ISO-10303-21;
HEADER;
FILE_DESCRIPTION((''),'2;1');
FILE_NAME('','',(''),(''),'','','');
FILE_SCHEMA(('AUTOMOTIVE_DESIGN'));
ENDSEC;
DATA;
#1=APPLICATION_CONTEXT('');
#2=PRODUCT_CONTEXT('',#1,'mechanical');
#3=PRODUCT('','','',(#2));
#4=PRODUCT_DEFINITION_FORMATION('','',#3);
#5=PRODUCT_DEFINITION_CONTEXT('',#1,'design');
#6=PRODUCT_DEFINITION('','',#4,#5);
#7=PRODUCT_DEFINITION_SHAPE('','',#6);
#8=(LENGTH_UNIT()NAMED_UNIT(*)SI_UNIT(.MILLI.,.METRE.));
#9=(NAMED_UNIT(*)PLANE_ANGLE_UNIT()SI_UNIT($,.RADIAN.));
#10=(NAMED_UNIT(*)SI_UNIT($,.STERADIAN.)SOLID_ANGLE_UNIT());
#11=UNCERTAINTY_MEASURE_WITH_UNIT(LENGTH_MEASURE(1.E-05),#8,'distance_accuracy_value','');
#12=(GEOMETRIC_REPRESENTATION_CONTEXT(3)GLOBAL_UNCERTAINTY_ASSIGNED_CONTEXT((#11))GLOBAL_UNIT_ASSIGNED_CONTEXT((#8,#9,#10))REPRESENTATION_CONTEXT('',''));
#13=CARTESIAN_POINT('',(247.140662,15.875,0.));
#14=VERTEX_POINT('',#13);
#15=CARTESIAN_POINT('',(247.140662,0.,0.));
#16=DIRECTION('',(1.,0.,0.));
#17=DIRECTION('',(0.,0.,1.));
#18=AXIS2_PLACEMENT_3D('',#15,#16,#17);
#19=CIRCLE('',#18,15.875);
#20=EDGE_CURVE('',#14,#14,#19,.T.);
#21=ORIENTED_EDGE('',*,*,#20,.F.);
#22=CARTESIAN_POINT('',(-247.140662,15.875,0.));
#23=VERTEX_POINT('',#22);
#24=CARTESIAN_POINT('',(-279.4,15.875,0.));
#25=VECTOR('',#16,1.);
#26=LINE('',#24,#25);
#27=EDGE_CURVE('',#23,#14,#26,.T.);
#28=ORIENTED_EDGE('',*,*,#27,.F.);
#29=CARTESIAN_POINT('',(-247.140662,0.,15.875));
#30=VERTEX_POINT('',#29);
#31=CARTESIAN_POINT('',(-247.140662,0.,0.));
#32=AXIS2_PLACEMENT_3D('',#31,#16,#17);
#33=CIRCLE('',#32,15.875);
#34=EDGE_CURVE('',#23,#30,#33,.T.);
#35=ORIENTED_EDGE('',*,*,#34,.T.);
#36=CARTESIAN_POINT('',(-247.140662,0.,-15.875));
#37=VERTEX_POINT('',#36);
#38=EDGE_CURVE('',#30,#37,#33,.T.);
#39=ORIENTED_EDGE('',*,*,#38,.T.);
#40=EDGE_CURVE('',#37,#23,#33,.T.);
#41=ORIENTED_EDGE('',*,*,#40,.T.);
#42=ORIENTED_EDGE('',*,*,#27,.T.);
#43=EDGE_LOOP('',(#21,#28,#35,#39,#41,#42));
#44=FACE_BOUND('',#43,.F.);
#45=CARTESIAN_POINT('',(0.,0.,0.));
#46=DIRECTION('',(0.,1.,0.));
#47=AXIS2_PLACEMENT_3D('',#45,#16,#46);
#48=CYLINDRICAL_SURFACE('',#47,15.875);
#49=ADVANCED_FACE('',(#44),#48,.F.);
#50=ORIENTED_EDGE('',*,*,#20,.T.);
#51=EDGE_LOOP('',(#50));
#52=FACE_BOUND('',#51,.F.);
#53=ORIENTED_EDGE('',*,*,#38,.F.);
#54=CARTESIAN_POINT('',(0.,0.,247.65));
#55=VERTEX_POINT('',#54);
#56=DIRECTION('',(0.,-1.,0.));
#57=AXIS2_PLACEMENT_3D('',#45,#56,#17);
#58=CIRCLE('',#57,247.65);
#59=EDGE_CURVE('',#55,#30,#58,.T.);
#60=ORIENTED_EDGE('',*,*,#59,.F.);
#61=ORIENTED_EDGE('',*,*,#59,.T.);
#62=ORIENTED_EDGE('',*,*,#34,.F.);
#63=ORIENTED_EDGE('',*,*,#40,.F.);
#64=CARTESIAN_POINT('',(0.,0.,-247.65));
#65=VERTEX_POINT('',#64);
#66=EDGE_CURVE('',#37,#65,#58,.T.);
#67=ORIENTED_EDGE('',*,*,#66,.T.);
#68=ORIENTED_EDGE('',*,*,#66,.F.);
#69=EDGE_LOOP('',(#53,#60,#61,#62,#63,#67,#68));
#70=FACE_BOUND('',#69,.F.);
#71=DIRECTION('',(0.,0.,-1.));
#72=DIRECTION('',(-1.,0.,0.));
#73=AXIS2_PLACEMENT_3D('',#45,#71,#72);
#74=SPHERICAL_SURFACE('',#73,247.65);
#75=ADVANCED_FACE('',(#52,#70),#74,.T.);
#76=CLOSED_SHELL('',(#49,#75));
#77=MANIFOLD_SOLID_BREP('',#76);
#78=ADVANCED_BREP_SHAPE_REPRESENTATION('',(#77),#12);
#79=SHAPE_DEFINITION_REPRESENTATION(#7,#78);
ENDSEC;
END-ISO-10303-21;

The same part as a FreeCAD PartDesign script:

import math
import FreeCAD as App
import Part
import Sketcher

V = App.Vector
Q = App.Units.Quantity

doc = App.newDocument("Part")
params = doc.addObject("Spreadsheet::Sheet", "Params")
for row, (alias, value) in enumerate([
    ("sketch1_radius", "9.75 in"),
    ("revolution_angle", "360 deg"),
    ("sketch2_diameter", "1.25 in"),
    ("pocket1_length", "22 in"),
], start=1):
    params.set(f"A{row}", alias)
    params.set(f"B{row}", "=" + value)
    params.setAlias(f"B{row}", alias)

body = doc.addObject("PartDesign::Body", "Body")

# Sketch on XZ plane
sketch1 = body.newObject("Sketcher::SketchObject", "Sketch")
sketch1.AttachmentSupport = (doc.getObject("XZ_Plane"), [""])
sketch1.MapMode = "FlatFace"
sketch1.addGeometry(Part.ArcOfCircle(Part.Circle(V(0, 0, 0), V(0, 0, 1), 248), math.radians(90), math.radians(270)), False)
sketch1.addGeometry(Part.LineSegment(V(0, -248, 0), V(0, 248, 0)), False)
sketch1.addConstraint(Sketcher.Constraint("Coincident", 0, 1, 1, 2))
sketch1.addConstraint(Sketcher.Constraint("Coincident", 1, 1, 0, 2))
sketch1.addConstraint(Sketcher.Constraint("Vertical", 1))
sketch1.addConstraint(Sketcher.Constraint("Coincident", 0, 3, -1, 1))
sketch1.addConstraint(Sketcher.Constraint("PointOnObject", 0, 1, -2))
sketch1.addConstraint(Sketcher.Constraint("Radius", 0, Q("9.75 in")))
sketch1.setExpression("Constraints[5]", "Params.sketch1_radius")
revolution = body.newObject("PartDesign::Revolution", "Revolution")
revolution.Profile = sketch1
revolution.ReferenceAxis = (sketch1, ["V_Axis"])
revolution.setExpression("Angle", "Params.revolution_angle")

# Sketch on YZ plane
sketch2 = body.newObject("Sketcher::SketchObject", "Sketch001")
sketch2.AttachmentSupport = (doc.getObject("YZ_Plane"), [""])
sketch2.MapMode = "FlatFace"
sketch2.addGeometry(Part.Circle(V(0, 0, 0), V(0, 0, 1), 16), False)
sketch2.addConstraint(Sketcher.Constraint("Coincident", 0, 3, -1, 1))
sketch2.addConstraint(Sketcher.Constraint("Diameter", 0, Q("1.25 in")))
sketch2.setExpression("Constraints[1]", "Params.sketch2_diameter")
pocket1 = body.newObject("PartDesign::Pocket", "Pocket")
pocket1.Profile = sketch2
pocket1.setExpression("Length", "Params.pocket1_length")
pocket1.Midplane = True

doc.recompute()
